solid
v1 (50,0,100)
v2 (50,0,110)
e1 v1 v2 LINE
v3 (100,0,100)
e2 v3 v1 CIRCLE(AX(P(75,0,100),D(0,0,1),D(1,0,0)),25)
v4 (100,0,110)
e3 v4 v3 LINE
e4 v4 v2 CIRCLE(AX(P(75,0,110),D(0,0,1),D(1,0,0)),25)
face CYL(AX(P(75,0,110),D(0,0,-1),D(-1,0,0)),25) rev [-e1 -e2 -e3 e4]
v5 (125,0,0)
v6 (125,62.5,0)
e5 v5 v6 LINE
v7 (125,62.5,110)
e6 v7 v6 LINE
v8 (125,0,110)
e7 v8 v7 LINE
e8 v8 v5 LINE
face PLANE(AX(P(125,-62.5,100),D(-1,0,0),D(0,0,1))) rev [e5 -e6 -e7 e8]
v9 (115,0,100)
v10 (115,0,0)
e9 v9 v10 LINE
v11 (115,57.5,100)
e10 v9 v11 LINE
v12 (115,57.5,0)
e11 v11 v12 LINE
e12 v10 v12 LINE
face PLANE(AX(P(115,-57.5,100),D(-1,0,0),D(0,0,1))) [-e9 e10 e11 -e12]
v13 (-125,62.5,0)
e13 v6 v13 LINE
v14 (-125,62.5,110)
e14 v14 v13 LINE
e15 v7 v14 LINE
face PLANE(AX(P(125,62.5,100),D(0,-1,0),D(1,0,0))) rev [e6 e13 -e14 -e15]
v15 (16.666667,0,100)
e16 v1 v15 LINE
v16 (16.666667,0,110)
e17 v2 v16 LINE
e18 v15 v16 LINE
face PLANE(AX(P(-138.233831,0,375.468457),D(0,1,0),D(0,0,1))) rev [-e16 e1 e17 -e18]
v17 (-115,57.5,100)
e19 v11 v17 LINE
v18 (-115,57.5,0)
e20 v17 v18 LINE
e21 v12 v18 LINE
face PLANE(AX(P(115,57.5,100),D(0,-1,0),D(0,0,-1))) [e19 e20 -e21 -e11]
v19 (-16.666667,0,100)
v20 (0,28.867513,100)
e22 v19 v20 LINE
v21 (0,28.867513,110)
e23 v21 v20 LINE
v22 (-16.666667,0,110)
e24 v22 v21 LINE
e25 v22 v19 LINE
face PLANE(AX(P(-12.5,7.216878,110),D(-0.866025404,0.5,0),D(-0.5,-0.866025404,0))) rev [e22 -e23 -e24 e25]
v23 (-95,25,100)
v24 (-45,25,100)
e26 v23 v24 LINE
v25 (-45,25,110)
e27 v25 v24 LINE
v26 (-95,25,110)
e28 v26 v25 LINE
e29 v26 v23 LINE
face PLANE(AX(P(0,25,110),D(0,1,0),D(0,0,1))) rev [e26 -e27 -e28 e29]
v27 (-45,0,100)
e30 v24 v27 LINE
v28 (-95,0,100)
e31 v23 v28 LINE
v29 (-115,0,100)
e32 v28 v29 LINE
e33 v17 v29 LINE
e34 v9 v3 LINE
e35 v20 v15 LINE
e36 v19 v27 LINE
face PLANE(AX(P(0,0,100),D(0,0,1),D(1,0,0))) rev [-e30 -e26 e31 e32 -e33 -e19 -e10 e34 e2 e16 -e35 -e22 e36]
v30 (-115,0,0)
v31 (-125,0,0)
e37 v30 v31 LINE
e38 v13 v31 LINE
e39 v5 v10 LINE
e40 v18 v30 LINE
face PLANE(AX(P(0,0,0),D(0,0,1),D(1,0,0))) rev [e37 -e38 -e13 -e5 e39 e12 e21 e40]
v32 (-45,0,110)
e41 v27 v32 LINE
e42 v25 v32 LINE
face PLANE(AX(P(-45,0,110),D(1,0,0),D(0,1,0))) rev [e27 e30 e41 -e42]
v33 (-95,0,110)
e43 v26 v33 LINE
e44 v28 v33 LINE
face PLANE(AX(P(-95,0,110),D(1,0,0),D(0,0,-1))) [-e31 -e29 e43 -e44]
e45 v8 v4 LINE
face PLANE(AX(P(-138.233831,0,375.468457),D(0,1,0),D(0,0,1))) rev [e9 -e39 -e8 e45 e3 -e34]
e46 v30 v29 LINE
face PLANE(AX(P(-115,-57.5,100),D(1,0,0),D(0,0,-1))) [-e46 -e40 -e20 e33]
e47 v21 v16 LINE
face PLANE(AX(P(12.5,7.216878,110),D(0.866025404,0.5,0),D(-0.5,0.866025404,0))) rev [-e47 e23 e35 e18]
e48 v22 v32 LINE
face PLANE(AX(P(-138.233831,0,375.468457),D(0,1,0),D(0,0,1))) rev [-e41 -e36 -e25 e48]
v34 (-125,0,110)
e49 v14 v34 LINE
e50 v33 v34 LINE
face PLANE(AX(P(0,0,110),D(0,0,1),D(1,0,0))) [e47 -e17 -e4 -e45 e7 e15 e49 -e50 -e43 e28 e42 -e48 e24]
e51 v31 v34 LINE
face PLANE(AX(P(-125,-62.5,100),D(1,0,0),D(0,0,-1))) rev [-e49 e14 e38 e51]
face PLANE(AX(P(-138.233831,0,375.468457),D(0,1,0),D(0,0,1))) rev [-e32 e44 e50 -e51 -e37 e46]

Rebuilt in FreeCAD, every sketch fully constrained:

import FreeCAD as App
import Part
import Sketcher
Q = App.Units.Quantity

doc = App.newDocument("Part")
params = doc.addObject("Spreadsheet::Sheet", "Params")
for row, (alias, value) in enumerate([
    ("sketch1_width", "250 mm"),
    ("sketch1_width2", "230 mm"),
    ("sketch1_height", "125 mm"),
    ("sketch1_height2", "115 mm"),
    ("pad1_length", "100 mm"),
    ("sketch2_diameter", "50 mm"),
    ("sketch2_width", "250 mm"),
    ("sketch2_width2", "50 mm"),
    ("sketch2_height", "125 mm"),
    ("pad2_length", "10 mm"),
], start=1):
    params.set(f"A{row}", alias)
    params.set(f"B{row}", "=" + value)
    params.setAlias(f"B{row}", alias)

body = doc.addObject("PartDesign::Body", "Body")

# Sketch on XY plane
sketch1 = body.newObject("Sketcher::SketchObject", "Sketch")
sketch1.AttachmentSupport = (doc.getObject("XY_Plane"), [""])
sketch1.MapMode = "FlatFace"
sketch1.addGeometry([
    Part.LineSegment(App.Vector(-125, 62, 0), App.Vector(-125, -62, 0)),  # 0
    Part.LineSegment(App.Vector(-125, -62, 0), App.Vector(125, -62, 0)),  # 1
    Part.LineSegment(App.Vector(125, -62, 0), App.Vector(125, 62, 0)),  # 2
    Part.LineSegment(App.Vector(125, 62, 0), App.Vector(-125, 62, 0)),  # 3
    Part.LineSegment(App.Vector(115, -58, 0), App.Vector(-115, -58, 0)),  # 4
    Part.LineSegment(App.Vector(-115, -58, 0), App.Vector(-115, 58, 0)),  # 5
    Part.LineSegment(App.Vector(-115, 58, 0), App.Vector(115, 58, 0)),  # 6
    Part.LineSegment(App.Vector(115, 58, 0), App.Vector(115, -58, 0)),  # 7
], False)
sketch1.addConstraint([
    Sketcher.Constraint("Coincident", 0, 2, 1, 1),
    Sketcher.Constraint("Coincident", 1, 2, 2, 1),
    Sketcher.Constraint("Coincident", 2, 2, 3, 1),
    Sketcher.Constraint("Coincident", 3, 2, 0, 1),
    Sketcher.Constraint("Coincident", 4, 2, 5, 1),
    Sketcher.Constraint("Coincident", 5, 2, 6, 1),
    Sketcher.Constraint("Coincident", 6, 2, 7, 1),
    Sketcher.Constraint("Coincident", 7, 2, 4, 1),
    Sketcher.Constraint("Vertical", 0),
    Sketcher.Constraint("Horizontal", 1),
    Sketcher.Constraint("Vertical", 2),
    Sketcher.Constraint("Horizontal", 3),
    Sketcher.Constraint("Horizontal", 4),
    Sketcher.Constraint("Vertical", 5),
    Sketcher.Constraint("Horizontal", 6),
    Sketcher.Constraint("Vertical", 7),
    Sketcher.Constraint("Symmetric", 0, 2, 2, 2, -1, 1),
    Sketcher.Constraint("Symmetric", 4, 2, 6, 2, -1, 1),
    Sketcher.Constraint("DistanceX", 1, 1, 1, 2, Q("250 mm")),
    Sketcher.Constraint("DistanceX", 4, 2, 4, 1, Q("230 mm")),
    Sketcher.Constraint("DistanceY", 0, 2, 0, 1, Q("125 mm")),
    Sketcher.Constraint("DistanceY", 5, 1, 5, 2, Q("115 mm")),
])
sketch1.setExpression("Constraints[18]", "Params.sketch1_width")
sketch1.setExpression("Constraints[19]", "Params.sketch1_width2")
sketch1.setExpression("Constraints[20]", "Params.sketch1_height")
sketch1.setExpression("Constraints[21]", "Params.sketch1_height2")
pad1 = body.newObject("PartDesign::Pad", "Pad")
pad1.Profile = sketch1
pad1.setExpression("Length", "Params.pad1_length")

# Sketch on XY plane
sketch2 = body.newObject("Sketcher::SketchObject", "Sketch001")
sketch2.AttachmentSupport = (doc.getObject("XY_Plane"), [""])
sketch2.MapMode = "FlatFace"
sketch2.AttachmentOffset = App.Placement(App.Vector(0, 0, 100), App.Rotation())
sketch2.addGeometry([
    Part.LineSegment(App.Vector(-125, 62, 0), App.Vector(-125, -62, 0)),  # 0
    Part.LineSegment(App.Vector(-125, -62, 0), App.Vector(125, -62, 0)),  # 1
    Part.LineSegment(App.Vector(125, -62, 0), App.Vector(125, 62, 0)),  # 2
    Part.LineSegment(App.Vector(125, 62, 0), App.Vector(-125, 62, 0)),  # 3
    Part.Circle(App.Vector(75, 0, 0), App.Vector(0, 0, 1), 25),  # 4
    Part.LineSegment(App.Vector(0, 29, 0), App.Vector(25, -14, 0)),  # 5
    Part.LineSegment(App.Vector(25, -14, 0), App.Vector(-25, -14, 0)),  # 6
    Part.LineSegment(App.Vector(-25, -14, 0), App.Vector(0, 29, 0)),  # 7
    Part.LineSegment(App.Vector(-45, -25, 0), App.Vector(-95, -25, 0)),  # 8
    Part.LineSegment(App.Vector(-95, -25, 0), App.Vector(-95, 25, 0)),  # 9
    Part.LineSegment(App.Vector(-95, 25, 0), App.Vector(-45, 25, 0)),  # 10
    Part.LineSegment(App.Vector(-45, 25, 0), App.Vector(-45, -25, 0)),  # 11
], False)
sketch2.addConstraint([
    Sketcher.Constraint("Coincident", 0, 2, 1, 1),
    Sketcher.Constraint("Coincident", 1, 2, 2, 1),
    Sketcher.Constraint("Coincident", 2, 2, 3, 1),
    Sketcher.Constraint("Coincident", 3, 2, 0, 1),
    Sketcher.Constraint("Coincident", 5, 2, 6, 1),
    Sketcher.Constraint("Coincident", 6, 2, 7, 1),
    Sketcher.Constraint("Coincident", 7, 2, 5, 1),
    Sketcher.Constraint("Coincident", 8, 2, 9, 1),
    Sketcher.Constraint("Coincident", 9, 2, 10, 1),
    Sketcher.Constraint("Coincident", 10, 2, 11, 1),
    Sketcher.Constraint("Coincident", 11, 2, 8, 1),
    Sketcher.Constraint("Vertical", 0),
    Sketcher.Constraint("Horizontal", 1),
    Sketcher.Constraint("Vertical", 2),
    Sketcher.Constraint("Horizontal", 3),
    Sketcher.Constraint("Horizontal", 6),
    Sketcher.Constraint("Horizontal", 8),
    Sketcher.Constraint("Vertical", 9),
    Sketcher.Constraint("Horizontal", 10),
    Sketcher.Constraint("Vertical", 11),
    Sketcher.Constraint("Symmetric", 0, 2, 2, 2, -1, 1),
    Sketcher.Constraint("PointOnObject", 4, 3, -1),
    Sketcher.Constraint("PointOnObject", 7, 2, -2),
    Sketcher.Constraint("Equal", 6, 8),
    Sketcher.Constraint("Equal", 10, 9),
    Sketcher.Constraint("Equal", 5, 7),
    Sketcher.Constraint("Diameter", 4, Q("50 mm")),
    Sketcher.Constraint("DistanceX", 1, 1, 1, 2, Q("250 mm")),
    Sketcher.Constraint("DistanceX", 6, 2, 6, 1, Q("50 mm")),
    Sketcher.Constraint("DistanceY", 0, 2, 0, 1, Q("125 mm")),
    Sketcher.Constraint("Angle", 5, Q("-60 deg")),
    Sketcher.Constraint("DistanceX", -1, 1, 4, 3, Q("75 mm")),
    Sketcher.Constraint("DistanceX", 8, 2, -1, 1, Q("95 mm")),
    Sketcher.Constraint("DistanceY", 8, 2, -1, 1, Q("25 mm")),
    Sketcher.Constraint("DistanceY", 5, 2, -1, 1, Q("14.433757 mm")),
])
sketch2.setExpression("Constraints[26]", "Params.sketch2_diameter")
sketch2.setExpression("Constraints[27]", "Params.sketch2_width")
sketch2.setExpression("Constraints[28]", "Params.sketch2_width2")
sketch2.setExpression("Constraints[29]", "Params.sketch2_height")
pad2 = body.newObject("PartDesign::Pad", "Pad001")
pad2.Profile = sketch2
pad2.setExpression("Length", "Params.pad2_length")

# Sketch on XY plane
sketch3 = body.newObject("Sketcher::SketchObject", "Sketch002")
sketch3.AttachmentSupport = (doc.getObject("XY_Plane"), [""])
sketch3.MapMode = "FlatFace"
sketch3.addGeometry([
    Part.LineSegment(App.Vector(720, 0, 0), App.Vector(-710, 0, 0)),
    Part.LineSegment(App.Vector(-710, 0, 0), App.Vector(-710, -1143, 0)),
    Part.LineSegment(App.Vector(-710, -1143, 0), App.Vector(720, -1143, 0)),
    Part.LineSegment(App.Vector(720, -1143, 0), App.Vector(720, 0, 0)),
], False)
sketch3.addConstraint([
    Sketcher.Constraint("Coincident", 0, 2, 1, 1),
    Sketcher.Constraint("Coincident", 1, 2, 2, 1),
    Sketcher.Constraint("Coincident", 2, 2, 3, 1),
    Sketcher.Constraint("Coincident", 3, 2, 0, 1),
    Sketcher.Constraint("Horizontal", 0),
    Sketcher.Constraint("Vertical", 1),
    Sketcher.Constraint("Horizontal", 2),
    Sketcher.Constraint("Vertical", 3),
    Sketcher.Constraint("PointOnObject", 0, 2, -1),
    Sketcher.Constraint("DistanceX", 0, 2, 0, 1, Q("1430.216838 mm")),
    Sketcher.Constraint("DistanceY", 1, 2, 1, 1, Q("1143.221433 mm")),
    Sketcher.Constraint("DistanceX", -1, 1, 2, 2, Q("720.37229 mm")),
])
pocket1 = body.newObject("PartDesign::Pocket", "Pocket")
pocket1.Profile = sketch3
pocket1.Type = "ThroughAll"
pocket1.Midplane = True

doc.recompute()
